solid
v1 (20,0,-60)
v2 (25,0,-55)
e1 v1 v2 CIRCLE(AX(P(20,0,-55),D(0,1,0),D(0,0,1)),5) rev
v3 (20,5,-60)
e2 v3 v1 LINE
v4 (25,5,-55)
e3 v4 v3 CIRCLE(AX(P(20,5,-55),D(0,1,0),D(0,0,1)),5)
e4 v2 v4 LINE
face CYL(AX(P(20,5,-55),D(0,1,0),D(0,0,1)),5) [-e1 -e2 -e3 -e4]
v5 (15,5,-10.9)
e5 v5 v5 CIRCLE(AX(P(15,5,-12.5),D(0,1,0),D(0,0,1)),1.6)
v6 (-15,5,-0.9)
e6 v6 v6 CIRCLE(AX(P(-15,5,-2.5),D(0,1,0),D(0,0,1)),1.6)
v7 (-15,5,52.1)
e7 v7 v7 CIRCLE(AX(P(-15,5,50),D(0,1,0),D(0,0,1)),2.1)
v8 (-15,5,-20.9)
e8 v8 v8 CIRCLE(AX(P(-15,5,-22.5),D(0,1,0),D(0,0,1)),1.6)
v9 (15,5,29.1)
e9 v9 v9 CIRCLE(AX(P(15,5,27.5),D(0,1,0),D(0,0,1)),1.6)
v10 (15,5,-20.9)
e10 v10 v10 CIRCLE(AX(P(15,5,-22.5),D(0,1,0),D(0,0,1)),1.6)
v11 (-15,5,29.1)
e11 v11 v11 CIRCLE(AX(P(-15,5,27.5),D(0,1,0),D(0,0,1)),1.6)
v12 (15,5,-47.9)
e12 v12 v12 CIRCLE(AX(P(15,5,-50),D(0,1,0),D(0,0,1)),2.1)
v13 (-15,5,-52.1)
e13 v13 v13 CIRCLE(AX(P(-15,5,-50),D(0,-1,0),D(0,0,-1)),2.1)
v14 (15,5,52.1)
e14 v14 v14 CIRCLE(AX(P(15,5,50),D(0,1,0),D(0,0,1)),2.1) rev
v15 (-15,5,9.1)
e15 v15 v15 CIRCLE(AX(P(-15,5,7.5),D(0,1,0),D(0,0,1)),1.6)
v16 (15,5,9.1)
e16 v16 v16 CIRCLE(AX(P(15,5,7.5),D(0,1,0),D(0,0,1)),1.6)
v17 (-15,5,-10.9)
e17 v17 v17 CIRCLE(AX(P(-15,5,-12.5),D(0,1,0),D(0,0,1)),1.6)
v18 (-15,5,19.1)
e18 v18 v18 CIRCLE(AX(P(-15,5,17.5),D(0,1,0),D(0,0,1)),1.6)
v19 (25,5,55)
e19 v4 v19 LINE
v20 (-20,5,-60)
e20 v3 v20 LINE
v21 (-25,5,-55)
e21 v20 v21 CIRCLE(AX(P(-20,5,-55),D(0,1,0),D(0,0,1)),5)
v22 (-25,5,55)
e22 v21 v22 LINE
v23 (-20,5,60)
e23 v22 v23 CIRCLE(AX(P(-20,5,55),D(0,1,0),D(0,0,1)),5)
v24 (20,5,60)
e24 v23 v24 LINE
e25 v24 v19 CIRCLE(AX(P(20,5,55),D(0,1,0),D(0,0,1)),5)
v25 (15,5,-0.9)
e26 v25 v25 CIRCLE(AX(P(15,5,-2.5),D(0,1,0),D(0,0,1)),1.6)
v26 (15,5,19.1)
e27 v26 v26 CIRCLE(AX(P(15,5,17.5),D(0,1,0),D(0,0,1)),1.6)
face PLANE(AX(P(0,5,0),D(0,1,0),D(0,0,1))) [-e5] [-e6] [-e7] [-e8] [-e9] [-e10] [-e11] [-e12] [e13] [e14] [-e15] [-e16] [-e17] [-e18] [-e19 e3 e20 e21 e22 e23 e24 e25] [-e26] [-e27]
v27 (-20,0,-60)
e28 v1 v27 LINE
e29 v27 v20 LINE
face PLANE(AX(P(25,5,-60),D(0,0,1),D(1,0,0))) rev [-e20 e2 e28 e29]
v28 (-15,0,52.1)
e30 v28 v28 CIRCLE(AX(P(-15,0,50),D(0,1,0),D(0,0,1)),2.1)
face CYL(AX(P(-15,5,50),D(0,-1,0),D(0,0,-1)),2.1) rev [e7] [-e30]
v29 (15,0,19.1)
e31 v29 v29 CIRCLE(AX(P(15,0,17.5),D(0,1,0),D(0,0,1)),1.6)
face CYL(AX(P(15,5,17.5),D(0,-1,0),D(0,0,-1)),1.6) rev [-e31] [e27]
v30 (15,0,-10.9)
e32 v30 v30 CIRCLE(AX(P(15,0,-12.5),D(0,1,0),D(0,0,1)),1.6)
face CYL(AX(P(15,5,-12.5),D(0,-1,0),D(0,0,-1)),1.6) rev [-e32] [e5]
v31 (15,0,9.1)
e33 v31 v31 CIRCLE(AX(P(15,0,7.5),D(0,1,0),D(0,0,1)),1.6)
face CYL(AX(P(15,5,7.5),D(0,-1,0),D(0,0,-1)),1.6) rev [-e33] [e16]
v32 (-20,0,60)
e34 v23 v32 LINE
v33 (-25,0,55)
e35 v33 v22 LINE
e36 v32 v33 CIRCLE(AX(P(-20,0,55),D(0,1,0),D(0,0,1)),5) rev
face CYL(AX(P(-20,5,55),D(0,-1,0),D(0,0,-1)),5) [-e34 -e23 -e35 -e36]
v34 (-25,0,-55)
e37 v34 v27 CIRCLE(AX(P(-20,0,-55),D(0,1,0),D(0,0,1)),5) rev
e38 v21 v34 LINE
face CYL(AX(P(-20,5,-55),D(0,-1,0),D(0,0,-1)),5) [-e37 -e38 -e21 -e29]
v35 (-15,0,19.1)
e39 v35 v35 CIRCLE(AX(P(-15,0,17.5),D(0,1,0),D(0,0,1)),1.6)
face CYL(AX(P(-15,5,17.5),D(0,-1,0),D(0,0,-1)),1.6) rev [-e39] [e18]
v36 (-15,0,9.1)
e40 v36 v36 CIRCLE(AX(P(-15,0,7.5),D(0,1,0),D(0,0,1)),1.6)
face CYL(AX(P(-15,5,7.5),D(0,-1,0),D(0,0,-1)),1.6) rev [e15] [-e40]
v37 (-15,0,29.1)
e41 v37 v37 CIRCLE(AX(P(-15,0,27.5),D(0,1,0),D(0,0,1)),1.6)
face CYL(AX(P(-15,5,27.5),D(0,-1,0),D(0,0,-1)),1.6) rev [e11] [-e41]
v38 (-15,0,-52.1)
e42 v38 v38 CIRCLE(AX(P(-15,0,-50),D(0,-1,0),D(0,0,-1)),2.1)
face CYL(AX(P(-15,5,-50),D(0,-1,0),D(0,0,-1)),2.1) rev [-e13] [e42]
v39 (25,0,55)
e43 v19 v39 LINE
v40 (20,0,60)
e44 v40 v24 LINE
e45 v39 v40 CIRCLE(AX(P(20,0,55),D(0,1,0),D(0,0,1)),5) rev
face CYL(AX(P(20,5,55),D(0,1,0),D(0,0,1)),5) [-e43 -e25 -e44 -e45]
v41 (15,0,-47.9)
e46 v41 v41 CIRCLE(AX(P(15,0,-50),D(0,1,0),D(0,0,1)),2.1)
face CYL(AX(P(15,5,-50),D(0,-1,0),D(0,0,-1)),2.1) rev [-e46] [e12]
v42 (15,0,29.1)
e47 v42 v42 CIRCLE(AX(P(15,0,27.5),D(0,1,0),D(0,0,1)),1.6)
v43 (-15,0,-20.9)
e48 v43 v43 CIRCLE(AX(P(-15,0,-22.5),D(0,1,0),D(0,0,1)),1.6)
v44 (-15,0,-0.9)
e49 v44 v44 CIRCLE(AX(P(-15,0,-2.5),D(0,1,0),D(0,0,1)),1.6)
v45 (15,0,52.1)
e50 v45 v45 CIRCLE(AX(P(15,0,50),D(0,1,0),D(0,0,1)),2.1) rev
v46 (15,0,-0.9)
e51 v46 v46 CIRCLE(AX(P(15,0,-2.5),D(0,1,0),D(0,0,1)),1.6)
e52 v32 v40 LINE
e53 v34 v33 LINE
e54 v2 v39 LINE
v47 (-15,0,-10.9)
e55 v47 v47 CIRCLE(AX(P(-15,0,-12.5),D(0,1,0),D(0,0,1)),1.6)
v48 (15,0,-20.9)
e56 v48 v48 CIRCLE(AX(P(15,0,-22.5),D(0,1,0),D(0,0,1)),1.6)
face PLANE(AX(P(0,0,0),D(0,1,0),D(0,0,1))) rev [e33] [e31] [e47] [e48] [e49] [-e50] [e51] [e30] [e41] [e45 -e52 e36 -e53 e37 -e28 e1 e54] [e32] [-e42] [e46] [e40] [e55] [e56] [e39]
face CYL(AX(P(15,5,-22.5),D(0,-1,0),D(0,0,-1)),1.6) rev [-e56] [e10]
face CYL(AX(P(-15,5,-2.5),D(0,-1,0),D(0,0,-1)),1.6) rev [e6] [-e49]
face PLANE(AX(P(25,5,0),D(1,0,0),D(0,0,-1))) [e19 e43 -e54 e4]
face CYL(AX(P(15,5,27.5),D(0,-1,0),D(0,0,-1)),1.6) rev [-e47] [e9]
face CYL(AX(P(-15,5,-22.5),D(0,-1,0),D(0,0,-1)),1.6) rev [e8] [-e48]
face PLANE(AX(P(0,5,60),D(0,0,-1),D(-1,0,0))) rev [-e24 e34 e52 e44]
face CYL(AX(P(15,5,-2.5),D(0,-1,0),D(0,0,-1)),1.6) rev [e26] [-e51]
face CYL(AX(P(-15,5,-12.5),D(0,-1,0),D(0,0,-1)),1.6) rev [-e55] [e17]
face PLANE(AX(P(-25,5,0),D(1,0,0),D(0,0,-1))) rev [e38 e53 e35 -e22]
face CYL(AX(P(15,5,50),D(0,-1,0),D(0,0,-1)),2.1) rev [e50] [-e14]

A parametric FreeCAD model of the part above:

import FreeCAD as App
import Part
import Sketcher

V = App.Vector


def edges_at(feature, points):
    """Names of the edges that pass closest to the given points."""
    edges = feature.Shape.Edges
    near = lambda p: min(range(len(edges)), key=lambda i: edges[i].distToShape(Part.Vertex(*p))[0])
    return sorted({f"Edge{near(p) + 1}" for p in points})

doc = App.newDocument("Part")
body = doc.addObject("PartDesign::Body", "Body")

# Sketch on XZ plane
sketch1 = doc.addObject("Sketcher::SketchObject", "Sketch")
body.addObject(sketch1)
sketch1.AttachmentSupport = (doc.XZ_Plane, [""])
sketch1.MapMode = "FlatFace"
sketch1.addGeometry([
    Part.LineSegment(V(-25, -60, 0), V(-25, 60, 0)),  # 0
    Part.LineSegment(V(-25, 60, 0), V(25, 60, 0)),  # 1
    Part.LineSegment(V(25, 60, 0), V(25, -60, 0)),  # 2
    Part.LineSegment(V(25, -60, 0), V(-25, -60, 0)),  # 3
    Part.Circle(V(-15, 50, 0), V(0, 0, 1), 2.1),  # 4
    Part.Circle(V(-15, 27.5, 0), V(0, 0, 1), 1.6),  # 5
    Part.Circle(V(-15, 17.5, 0), V(0, 0, 1), 1.6),  # 6
    Part.Circle(V(-15, 7.5, 0), V(0, 0, 1), 1.6),  # 7
    Part.Circle(V(15, 50, 0), V(0, 0, 1), 2.1),  # 8
    Part.Circle(V(15, 27.5, 0), V(0, 0, 1), 1.6),  # 9
    Part.Circle(V(15, 17.5, 0), V(0, 0, 1), 1.6),  # 10
    Part.Circle(V(15, 7.5, 0), V(0, 0, 1), 1.6),  # 11
    Part.Circle(V(-15, -2.5, 0), V(0, 0, 1), 1.6),  # 12
    Part.Circle(V(-15, -12.5, 0), V(0, 0, 1), 1.6),  # 13
    Part.Circle(V(-15, -22.5, 0), V(0, 0, 1), 1.6),  # 14
    Part.Circle(V(-15, -50, 0), V(0, 0, 1), 2.1),  # 15
    Part.Circle(V(15, -2.5, 0), V(0, 0, 1), 1.6),  # 16
    Part.Circle(V(15, -12.5, 0), V(0, 0, 1), 1.6),  # 17
    Part.Circle(V(15, -22.5, 0), V(0, 0, 1), 1.6),  # 18
    Part.Circle(V(15, -50, 0), V(0, 0, 1), 2.1),  # 19
], False)
sketch1.addConstraint([
    Sketcher.Constraint("Coincident", 0, 2, 1, 1),
    Sketcher.Constraint("Coincident", 1, 2, 2, 1),
    Sketcher.Constraint("Coincident", 2, 2, 3, 1),
    Sketcher.Constraint("Coincident", 3, 2, 0, 1),
    Sketcher.Constraint("Vertical", 0),
    Sketcher.Constraint("Horizontal", 1),
    Sketcher.Constraint("Vertical", 2),
    Sketcher.Constraint("Horizontal", 3),
    Sketcher.Constraint("Equal", 5, 6),
    Sketcher.Constraint("Equal", 6, 7),
    Sketcher.Constraint("Equal", 4, 8),
    Sketcher.Constraint("Equal", 7, 9),
    Sketcher.Constraint("Equal", 9, 10),
    Sketcher.Constraint("Equal", 10, 11),
    Sketcher.Constraint("Equal", 11, 12),
    Sketcher.Constraint("Equal", 12, 13),
    Sketcher.Constraint("Equal", 13, 14),
    Sketcher.Constraint("Equal", 8, 15),
    Sketcher.Constraint("Equal", 14, 16),
    Sketcher.Constraint("Equal", 16, 17),
    Sketcher.Constraint("Equal", 17, 18),
    Sketcher.Constraint("Equal", 15, 19),
    Sketcher.Constraint("Symmetric", 8, 3, 15, 3, -1, 1),
    Sketcher.Constraint("Symmetric", 4, 3, 19, 3, -1, 1),
    Sketcher.Constraint("Symmetric", 0, 2, 2, 2, -1, 1),
    Sketcher.Constraint("Symmetric", 4, 3, 8, 3, -2),
    Sketcher.Constraint("Symmetric", 5, 3, 9, 3, -2),
    Sketcher.Constraint("Symmetric", 6, 3, 10, 3, -2),
    Sketcher.Constraint("Symmetric", 7, 3, 11, 3, -2),
    Sketcher.Constraint("Symmetric", 12, 3, 16, 3, -2),
    Sketcher.Constraint("Symmetric", 13, 3, 17, 3, -2),
    Sketcher.Constraint("Symmetric", 14, 3, 18, 3, -2),
    Sketcher.Constraint("Vertical", 4, 3, 5, 3),
    Sketcher.Constraint("Vertical", 5, 3, 6, 3),
    Sketcher.Constraint("Vertical", 6, 3, 7, 3),
    Sketcher.Constraint("Vertical", 7, 3, 12, 3),
    Sketcher.Constraint("Vertical", 12, 3, 13, 3),
    Sketcher.Constraint("Vertical", 13, 3, 14, 3),
    Sketcher.Constraint("Diameter", 4, 4.2),
    Sketcher.Constraint("Diameter", 5, 3.2),
    Sketcher.Constraint("DistanceX", 1, 1, 1, 2, 50.0),
    Sketcher.Constraint("DistanceY", 0, 1, 0, 2, 120.0),
    Sketcher.Constraint("DistanceX", 4, 3, -1, 1, 15.0),
    Sketcher.Constraint("DistanceY", -1, 1, 4, 3, 50.0),
    Sketcher.Constraint("DistanceY", 6, 3, 5, 3, 10.0),
    Sketcher.Constraint("DistanceY", 7, 3, 6, 3, 10.0),
    Sketcher.Constraint("DistanceY", 12, 3, 7, 3, 10.0),
    Sketcher.Constraint("DistanceY", 13, 3, 12, 3, 10.0),
    Sketcher.Constraint("DistanceY", 14, 3, 13, 3, 10.0),
    Sketcher.Constraint("DistanceY", -1, 1, 5, 3, 27.5),
])
pad1 = doc.addObject("PartDesign::Pad", "Pad")
body.addObject(pad1)
pad1.Profile = sketch1
pad1.Length = 5
pad1.Reversed = True
doc.recompute()

fillet = doc.addObject("PartDesign::Fillet", "Fillet")
body.addObject(fillet)
fillet.Base = (pad1, edges_at(pad1, [
    (25, 2.5, 60),
    (-25, 2.5, 60),
    (-25, 2.5, -60),
    (25, 2.5, -60),
]))
fillet.Radius = 5

doc.recompute()
